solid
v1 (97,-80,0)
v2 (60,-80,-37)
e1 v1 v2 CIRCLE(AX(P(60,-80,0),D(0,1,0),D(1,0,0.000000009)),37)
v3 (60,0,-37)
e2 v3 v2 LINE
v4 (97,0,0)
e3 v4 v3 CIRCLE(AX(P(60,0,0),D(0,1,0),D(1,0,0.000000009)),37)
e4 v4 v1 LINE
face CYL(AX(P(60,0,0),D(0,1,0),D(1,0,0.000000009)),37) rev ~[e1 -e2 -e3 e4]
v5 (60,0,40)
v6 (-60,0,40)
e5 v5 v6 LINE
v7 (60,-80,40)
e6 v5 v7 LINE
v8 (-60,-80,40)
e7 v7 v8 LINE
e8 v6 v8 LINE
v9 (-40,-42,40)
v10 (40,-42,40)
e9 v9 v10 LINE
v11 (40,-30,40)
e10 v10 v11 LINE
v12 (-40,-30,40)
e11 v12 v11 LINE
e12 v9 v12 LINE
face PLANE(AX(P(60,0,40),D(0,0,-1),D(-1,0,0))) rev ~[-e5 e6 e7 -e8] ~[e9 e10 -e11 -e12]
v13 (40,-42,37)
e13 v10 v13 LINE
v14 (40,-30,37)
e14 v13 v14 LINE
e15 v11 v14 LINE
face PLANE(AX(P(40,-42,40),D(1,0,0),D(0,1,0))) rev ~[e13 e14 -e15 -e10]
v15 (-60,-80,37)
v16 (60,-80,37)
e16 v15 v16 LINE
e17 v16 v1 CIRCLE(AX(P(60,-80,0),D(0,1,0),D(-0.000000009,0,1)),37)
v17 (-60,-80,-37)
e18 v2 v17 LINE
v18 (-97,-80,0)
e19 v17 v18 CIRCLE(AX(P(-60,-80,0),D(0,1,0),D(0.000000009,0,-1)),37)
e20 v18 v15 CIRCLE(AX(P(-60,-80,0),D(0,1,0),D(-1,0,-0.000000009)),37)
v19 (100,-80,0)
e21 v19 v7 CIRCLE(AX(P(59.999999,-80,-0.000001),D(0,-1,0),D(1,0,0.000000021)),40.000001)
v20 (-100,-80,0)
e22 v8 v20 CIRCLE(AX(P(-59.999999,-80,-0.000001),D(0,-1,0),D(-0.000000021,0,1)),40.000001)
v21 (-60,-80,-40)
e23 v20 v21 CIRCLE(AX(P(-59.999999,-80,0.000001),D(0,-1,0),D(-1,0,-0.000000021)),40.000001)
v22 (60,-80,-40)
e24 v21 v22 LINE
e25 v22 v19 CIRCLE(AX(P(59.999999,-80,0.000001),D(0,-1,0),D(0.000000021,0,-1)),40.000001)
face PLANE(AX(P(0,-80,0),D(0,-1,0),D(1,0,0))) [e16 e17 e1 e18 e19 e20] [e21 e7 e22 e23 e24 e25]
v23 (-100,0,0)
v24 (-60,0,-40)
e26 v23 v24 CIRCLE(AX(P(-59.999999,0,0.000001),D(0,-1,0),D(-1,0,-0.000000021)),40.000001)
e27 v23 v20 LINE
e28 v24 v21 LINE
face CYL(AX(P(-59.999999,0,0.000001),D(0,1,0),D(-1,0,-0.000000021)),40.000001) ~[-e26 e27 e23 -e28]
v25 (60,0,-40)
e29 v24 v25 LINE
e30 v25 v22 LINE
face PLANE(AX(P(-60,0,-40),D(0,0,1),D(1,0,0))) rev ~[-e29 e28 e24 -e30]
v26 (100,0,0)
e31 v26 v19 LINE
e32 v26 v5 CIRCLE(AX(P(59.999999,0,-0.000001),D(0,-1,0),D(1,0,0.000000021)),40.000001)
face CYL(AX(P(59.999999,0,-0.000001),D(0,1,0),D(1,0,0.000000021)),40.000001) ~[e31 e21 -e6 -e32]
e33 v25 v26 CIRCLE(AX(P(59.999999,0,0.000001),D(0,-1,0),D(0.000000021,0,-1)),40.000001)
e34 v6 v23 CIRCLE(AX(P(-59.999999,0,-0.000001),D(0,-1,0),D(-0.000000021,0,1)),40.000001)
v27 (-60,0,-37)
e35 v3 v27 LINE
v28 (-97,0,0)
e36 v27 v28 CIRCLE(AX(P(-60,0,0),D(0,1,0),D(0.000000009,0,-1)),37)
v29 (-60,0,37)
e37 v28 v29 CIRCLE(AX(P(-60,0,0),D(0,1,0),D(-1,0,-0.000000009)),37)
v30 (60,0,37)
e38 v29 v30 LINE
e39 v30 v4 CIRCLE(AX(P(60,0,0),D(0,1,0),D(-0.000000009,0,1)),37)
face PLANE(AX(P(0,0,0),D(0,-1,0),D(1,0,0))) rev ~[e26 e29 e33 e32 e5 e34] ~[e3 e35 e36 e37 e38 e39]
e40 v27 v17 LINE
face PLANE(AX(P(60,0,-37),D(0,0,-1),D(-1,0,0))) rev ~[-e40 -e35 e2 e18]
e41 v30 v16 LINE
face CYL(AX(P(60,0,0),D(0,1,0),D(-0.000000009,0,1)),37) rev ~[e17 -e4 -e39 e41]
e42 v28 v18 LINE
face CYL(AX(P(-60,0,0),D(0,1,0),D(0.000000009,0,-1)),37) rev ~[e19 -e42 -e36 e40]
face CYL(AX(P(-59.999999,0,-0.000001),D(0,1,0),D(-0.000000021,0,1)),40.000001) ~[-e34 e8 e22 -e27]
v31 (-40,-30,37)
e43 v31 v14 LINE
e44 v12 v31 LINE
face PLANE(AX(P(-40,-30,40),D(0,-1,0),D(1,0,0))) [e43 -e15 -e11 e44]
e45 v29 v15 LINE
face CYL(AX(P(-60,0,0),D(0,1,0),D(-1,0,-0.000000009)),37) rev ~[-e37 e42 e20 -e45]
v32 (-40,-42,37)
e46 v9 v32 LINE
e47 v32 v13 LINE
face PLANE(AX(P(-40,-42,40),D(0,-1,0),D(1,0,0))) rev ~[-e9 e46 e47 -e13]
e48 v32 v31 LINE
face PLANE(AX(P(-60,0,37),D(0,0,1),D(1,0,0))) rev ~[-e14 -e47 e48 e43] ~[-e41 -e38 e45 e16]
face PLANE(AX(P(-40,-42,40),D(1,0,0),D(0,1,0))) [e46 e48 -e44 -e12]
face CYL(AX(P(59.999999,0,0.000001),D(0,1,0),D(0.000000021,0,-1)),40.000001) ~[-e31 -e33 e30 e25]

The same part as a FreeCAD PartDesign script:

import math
import FreeCAD as App
import Part
import Sketcher

doc = App.newDocument("Part")
body = doc.addObject("PartDesign::Body", "Body")

sketch1 = body.newObject("Sketcher::SketchObject", "Sketch")
sketch1.AttachmentSupport = (doc.getObject("XZ_Plane"), [""])
sketch1.MapMode = "FlatFace"
sketch1.addGeometry(Part.LineSegment(App.Vector(60, 40, 0), App.Vector(-60, 40, 0)), False)
sketch1.addGeometry(Part.ArcOfCircle(Part.Circle(App.Vector(-59.999999, -0.000001, 0), App.Vector(0, 0, 1), 40.000001), math.radians(90.000001), math.radians(179.999999)), False)
sketch1.addGeometry(Part.ArcOfCircle(Part.Circle(App.Vector(-59.999999, 0.000001, 0), App.Vector(0, 0, 1), 40.000001), math.radians(-179.999999), math.radians(-90.000001)), False)
sketch1.addGeometry(Part.LineSegment(App.Vector(-60, -40, 0), App.Vector(60, -40, 0)), False)
sketch1.addGeometry(Part.ArcOfCircle(Part.Circle(App.Vector(59.999999, 0.000001, 0), App.Vector(0, 0, 1), 40.000001), math.radians(-89.999999), math.radians(-0.000001)), False)
sketch1.addGeometry(Part.ArcOfCircle(Part.Circle(App.Vector(59.999999, -0.000001, 0), App.Vector(0, 0, 1), 40.000001), math.radians(0.000001), math.radians(89.999999)), False)
sketch1.addGeometry(Part.ArcOfCircle(Part.Circle(App.Vector(-60, 0, 0), App.Vector(0, 0, 1), 37), math.radians(179.999999), math.radians(270.000001)), False)
sketch1.addGeometry(Part.ArcOfCircle(Part.Circle(App.Vector(-60, 0, 0), App.Vector(0, 0, 1), 37), math.radians(89.999999), math.radians(180.000001)), False)
sketch1.addGeometry(Part.LineSegment(App.Vector(-60, 37, 0), App.Vector(60, 37, 0)), False)
sketch1.addGeometry(Part.ArcOfCircle(Part.Circle(App.Vector(60, 0, 0), App.Vector(0, 0, 1), 37), math.radians(-0.000001), math.radians(90.000001)), False)
sketch1.addGeometry(Part.ArcOfCircle(Part.Circle(App.Vector(60, 0, 0), App.Vector(0, 0, 1), 37), math.radians(-90.000001), math.radians(0.000001)), False)
sketch1.addGeometry(Part.LineSegment(App.Vector(60, -37, 0), App.Vector(-60, -37, 0)), False)
sketch1.addConstraint(Sketcher.Constraint("Tangent", 0, 2, 1, 1))
sketch1.addConstraint(Sketcher.Constraint("Tangent", 1, 2, 2, 1))
sketch1.addConstraint(Sketcher.Constraint("Tangent", 2, 2, 3, 1))
sketch1.addConstraint(Sketcher.Constraint("Tangent", 3, 2, 4, 1))
sketch1.addConstraint(Sketcher.Constraint("Tangent", 4, 2, 5, 1))
sketch1.addConstraint(Sketcher.Constraint("Tangent", 5, 2, 0, 1))
sketch1.addConstraint(Sketcher.Constraint("Tangent", 6, 1, 7, 2))
sketch1.addConstraint(Sketcher.Constraint("Tangent", 7, 1, 8, 1))
sketch1.addConstraint(Sketcher.Constraint("Tangent", 8, 2, 9, 2))
sketch1.addConstraint(Sketcher.Constraint("Tangent", 9, 1, 10, 2))
sketch1.addConstraint(Sketcher.Constraint("Tangent", 10, 1, 11, 1))
sketch1.addConstraint(Sketcher.Constraint("Tangent", 11, 2, 6, 2))
sketch1.addConstraint(Sketcher.Constraint("Horizontal", 0))
sketch1.addConstraint(Sketcher.Constraint("Horizontal", 3))
sketch1.addConstraint(Sketcher.Constraint("Horizontal", 8))
sketch1.addConstraint(Sketcher.Constraint("Horizontal", 11))
sketch1.addConstraint(Sketcher.Constraint("Coincident", 6, 3, 1, 3))
sketch1.addConstraint(Sketcher.Constraint("Coincident", 9, 3, 4, 3))
sketch1.addConstraint(Sketcher.Constraint("Equal", 1, 2))
sketch1.addConstraint(Sketcher.Constraint("Equal", 2, 4))
sketch1.addConstraint(Sketcher.Constraint("Equal", 6, 7))
sketch1.addConstraint(Sketcher.Constraint("Symmetric", 1, 3, 4, 3, -1, 1))
sketch1.addConstraint(Sketcher.Constraint("PointOnObject", 1, 2, -1))
sketch1.addConstraint(Sketcher.Constraint("PointOnObject", 4, 2, -1))
sketch1.addConstraint(Sketcher.Constraint("PointOnObject", 6, 1, -1))
sketch1.addConstraint(Sketcher.Constraint("PointOnObject", 9, 1, -1))
sketch1.addConstraint(Sketcher.Constraint("Radius", 1, 40.000001))
sketch1.addConstraint(Sketcher.Constraint("Radius", 6, 37.0))
sketch1.addConstraint(Sketcher.Constraint("DistanceX", 0, 2, 0, 1, 120.0))
pad1 = body.newObject("PartDesign::Pad", "Pad")
pad1.Profile = sketch1
pad1.Length = 80

sketch2 = body.newObject("Sketcher::SketchObject", "Sketch001")
sketch2.AttachmentSupport = (doc.getObject("XY_Plane"), [""])
sketch2.MapMode = "FlatFace"
sketch2.AttachmentOffset = App.Placement(App.Vector(0, 0, 40), App.Rotation())
sketch2.addGeometry(Part.LineSegment(App.Vector(-40, -30, 0), App.Vector(-40, -42, 0)), False)
sketch2.addGeometry(Part.LineSegment(App.Vector(-40, -42, 0), App.Vector(40, -42, 0)), False)
sketch2.addGeometry(Part.LineSegment(App.Vector(40, -42, 0), App.Vector(40, -30, 0)), False)
sketch2.addGeometry(Part.LineSegment(App.Vector(40, -30, 0), App.Vector(-40, -30, 0)), False)
sketch2.addConstraint(Sketcher.Constraint("Coincident", 0, 2, 1, 1))
sketch2.addConstraint(Sketcher.Constraint("Coincident", 1, 2, 2, 1))
sketch2.addConstraint(Sketcher.Constraint("Coincident", 2, 2, 3, 1))
sketch2.addConstraint(Sketcher.Constraint("Coincident", 3, 2, 0, 1))
sketch2.addConstraint(Sketcher.Constraint("Vertical", 0))
sketch2.addConstraint(Sketcher.Constraint("Horizontal", 1))
sketch2.addConstraint(Sketcher.Constraint("Vertical", 2))
sketch2.addConstraint(Sketcher.Constraint("Horizontal", 3))
sketch2.addConstraint(Sketcher.Constraint("DistanceX", 1, 1, 1, 2, 80.0))
sketch2.addConstraint(Sketcher.Constraint("DistanceY", 0, 2, 0, 1, 12.0))
sketch2.addConstraint(Sketcher.Constraint("DistanceX", 0, 2, -1, 1, 40.0))
sketch2.addConstraint(Sketcher.Constraint("DistanceY", 0, 2, -1, 1, 42.0))
pocket1 = body.newObject("PartDesign::Pocket", "Pocket")
pocket1.Profile = sketch2
pocket1.Length = 25

doc.recompute()
